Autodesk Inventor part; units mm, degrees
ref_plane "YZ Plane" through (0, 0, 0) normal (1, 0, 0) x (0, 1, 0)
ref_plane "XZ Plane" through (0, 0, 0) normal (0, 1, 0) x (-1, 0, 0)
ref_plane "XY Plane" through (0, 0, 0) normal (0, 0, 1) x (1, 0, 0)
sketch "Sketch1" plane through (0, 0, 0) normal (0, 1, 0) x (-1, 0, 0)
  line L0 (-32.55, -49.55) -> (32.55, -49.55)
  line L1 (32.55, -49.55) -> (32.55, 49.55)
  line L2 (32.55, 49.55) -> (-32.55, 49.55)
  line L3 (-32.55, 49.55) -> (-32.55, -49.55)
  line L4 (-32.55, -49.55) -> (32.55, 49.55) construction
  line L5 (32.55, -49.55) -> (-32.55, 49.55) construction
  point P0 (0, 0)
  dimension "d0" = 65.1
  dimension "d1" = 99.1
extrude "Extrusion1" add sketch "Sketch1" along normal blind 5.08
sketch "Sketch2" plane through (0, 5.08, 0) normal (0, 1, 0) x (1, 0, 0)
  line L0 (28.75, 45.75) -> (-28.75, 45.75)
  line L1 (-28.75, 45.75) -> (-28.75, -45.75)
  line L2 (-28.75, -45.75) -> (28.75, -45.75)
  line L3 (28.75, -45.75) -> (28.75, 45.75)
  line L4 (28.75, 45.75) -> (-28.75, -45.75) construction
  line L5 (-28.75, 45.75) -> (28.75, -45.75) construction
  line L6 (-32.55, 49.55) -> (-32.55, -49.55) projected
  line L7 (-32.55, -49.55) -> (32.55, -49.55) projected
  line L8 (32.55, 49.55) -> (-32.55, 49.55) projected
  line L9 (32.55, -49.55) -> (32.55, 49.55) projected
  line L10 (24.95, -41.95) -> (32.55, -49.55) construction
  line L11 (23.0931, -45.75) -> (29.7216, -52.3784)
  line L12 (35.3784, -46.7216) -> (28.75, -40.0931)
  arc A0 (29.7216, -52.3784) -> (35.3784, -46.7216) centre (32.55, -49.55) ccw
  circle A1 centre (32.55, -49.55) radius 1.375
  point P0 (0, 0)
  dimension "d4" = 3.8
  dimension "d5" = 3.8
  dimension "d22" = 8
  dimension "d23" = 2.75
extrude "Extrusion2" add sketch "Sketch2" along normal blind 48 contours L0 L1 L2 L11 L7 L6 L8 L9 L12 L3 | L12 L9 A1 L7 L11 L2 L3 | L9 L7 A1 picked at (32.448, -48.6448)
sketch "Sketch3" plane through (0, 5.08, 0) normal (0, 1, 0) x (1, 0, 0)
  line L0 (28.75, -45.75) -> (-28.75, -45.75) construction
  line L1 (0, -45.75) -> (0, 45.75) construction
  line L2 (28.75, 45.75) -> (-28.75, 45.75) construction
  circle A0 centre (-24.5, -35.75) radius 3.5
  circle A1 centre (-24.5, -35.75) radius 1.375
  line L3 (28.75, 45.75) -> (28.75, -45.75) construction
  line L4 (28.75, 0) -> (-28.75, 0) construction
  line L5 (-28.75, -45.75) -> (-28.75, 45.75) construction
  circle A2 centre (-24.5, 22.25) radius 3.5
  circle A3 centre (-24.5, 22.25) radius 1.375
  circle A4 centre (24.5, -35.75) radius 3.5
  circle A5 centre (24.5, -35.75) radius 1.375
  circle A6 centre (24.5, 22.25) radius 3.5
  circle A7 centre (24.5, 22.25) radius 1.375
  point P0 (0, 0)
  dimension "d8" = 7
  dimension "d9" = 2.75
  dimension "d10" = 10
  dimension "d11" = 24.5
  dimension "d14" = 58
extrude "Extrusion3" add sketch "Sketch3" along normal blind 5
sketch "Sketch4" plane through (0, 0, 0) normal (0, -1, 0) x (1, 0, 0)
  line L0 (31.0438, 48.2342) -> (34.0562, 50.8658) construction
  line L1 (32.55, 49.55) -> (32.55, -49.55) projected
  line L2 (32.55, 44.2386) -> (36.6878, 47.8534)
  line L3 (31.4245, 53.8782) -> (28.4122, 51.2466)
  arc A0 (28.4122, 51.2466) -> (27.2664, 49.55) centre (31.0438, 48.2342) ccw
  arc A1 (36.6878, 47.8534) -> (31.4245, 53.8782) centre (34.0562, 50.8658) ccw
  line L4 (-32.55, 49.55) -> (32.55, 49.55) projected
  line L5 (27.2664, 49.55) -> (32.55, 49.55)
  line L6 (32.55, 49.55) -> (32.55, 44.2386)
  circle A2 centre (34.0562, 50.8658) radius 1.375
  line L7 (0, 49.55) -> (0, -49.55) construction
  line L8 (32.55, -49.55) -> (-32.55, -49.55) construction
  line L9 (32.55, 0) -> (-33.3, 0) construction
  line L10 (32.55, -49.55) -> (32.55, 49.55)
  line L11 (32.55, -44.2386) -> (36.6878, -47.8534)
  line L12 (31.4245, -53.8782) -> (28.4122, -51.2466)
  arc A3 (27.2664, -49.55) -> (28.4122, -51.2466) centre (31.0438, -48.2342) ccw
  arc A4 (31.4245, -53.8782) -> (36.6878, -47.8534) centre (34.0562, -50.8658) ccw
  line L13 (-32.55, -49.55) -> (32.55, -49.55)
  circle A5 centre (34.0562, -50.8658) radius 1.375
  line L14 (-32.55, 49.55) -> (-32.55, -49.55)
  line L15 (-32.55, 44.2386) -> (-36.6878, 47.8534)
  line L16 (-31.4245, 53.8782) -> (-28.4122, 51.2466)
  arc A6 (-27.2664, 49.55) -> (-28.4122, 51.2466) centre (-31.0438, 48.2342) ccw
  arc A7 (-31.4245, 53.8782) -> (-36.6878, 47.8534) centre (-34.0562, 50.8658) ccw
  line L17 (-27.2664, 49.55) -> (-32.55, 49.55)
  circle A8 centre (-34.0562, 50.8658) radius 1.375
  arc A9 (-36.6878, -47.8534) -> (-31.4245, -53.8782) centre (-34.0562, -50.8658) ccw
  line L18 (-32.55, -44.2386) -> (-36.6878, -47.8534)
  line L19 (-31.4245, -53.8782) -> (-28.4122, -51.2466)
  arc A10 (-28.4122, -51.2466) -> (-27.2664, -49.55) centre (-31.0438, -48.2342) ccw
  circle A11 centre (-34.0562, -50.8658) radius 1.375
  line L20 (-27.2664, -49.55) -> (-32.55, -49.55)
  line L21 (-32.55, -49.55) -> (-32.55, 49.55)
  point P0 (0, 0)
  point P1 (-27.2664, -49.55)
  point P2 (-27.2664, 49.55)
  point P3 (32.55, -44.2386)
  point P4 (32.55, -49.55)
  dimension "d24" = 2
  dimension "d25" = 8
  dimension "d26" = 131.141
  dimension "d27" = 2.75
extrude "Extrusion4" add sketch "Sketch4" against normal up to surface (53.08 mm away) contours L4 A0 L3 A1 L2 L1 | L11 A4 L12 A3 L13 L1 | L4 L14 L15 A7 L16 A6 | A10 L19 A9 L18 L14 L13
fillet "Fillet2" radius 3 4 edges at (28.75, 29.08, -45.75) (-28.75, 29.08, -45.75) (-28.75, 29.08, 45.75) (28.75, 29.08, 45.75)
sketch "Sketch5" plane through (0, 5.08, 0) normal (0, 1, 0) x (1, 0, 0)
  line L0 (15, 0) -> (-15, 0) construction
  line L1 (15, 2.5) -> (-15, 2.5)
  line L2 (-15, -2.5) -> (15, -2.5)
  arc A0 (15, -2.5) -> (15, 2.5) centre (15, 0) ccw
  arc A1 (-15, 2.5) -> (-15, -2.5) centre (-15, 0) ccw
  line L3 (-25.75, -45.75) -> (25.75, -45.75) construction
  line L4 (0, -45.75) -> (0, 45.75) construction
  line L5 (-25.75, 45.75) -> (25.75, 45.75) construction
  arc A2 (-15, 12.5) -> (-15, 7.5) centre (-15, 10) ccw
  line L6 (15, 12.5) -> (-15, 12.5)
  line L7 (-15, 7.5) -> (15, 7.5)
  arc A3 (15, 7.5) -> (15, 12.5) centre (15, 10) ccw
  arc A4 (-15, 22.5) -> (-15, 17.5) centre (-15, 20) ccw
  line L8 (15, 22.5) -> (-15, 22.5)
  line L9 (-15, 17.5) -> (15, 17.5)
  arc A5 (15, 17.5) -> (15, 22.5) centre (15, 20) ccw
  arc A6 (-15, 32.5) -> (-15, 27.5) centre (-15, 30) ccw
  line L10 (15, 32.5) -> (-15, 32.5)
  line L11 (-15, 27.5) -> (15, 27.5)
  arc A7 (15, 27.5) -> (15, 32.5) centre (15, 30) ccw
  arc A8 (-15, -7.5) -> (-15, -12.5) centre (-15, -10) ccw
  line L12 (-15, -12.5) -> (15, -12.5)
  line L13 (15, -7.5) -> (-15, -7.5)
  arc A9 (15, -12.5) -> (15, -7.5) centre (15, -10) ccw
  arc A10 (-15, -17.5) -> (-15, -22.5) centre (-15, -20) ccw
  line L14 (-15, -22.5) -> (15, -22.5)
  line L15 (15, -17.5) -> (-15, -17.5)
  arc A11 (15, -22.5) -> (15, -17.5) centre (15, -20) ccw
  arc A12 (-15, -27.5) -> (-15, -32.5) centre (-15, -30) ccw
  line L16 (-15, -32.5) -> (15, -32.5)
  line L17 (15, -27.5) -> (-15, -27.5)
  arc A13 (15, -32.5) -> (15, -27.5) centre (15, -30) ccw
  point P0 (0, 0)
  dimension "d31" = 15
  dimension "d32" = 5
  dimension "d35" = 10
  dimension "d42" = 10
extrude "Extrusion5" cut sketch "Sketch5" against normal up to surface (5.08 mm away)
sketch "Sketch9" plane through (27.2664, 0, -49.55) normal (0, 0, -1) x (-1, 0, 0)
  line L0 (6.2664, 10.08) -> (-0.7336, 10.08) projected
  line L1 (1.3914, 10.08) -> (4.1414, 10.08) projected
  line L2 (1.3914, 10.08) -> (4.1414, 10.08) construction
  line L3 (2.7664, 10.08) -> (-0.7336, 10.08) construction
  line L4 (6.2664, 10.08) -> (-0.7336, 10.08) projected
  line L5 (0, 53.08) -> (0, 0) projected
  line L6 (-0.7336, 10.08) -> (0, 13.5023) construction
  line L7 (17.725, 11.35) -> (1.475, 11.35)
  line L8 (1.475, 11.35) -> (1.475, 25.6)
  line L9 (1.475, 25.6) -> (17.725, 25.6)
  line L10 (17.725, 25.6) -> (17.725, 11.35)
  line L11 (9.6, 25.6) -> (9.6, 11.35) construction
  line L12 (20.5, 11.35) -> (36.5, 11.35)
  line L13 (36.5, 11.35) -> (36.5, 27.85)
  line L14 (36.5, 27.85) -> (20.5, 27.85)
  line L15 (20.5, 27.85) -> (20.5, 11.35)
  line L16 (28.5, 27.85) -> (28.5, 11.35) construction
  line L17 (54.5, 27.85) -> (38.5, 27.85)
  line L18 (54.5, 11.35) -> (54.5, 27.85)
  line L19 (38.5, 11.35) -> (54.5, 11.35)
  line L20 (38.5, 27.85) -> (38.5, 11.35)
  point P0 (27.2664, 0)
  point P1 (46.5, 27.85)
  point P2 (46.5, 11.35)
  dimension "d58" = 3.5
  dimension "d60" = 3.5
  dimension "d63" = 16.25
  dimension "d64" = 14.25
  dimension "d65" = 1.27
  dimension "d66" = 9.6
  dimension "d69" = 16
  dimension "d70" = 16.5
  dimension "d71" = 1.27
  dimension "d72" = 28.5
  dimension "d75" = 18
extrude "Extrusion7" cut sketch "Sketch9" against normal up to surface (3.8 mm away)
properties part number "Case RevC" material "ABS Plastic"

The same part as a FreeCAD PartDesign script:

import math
import FreeCAD as App
import Part
import Sketcher
from FreeCAD import Vector
Q = App.Units.Quantity


def edges_at(feature, points):
    """Names of the edges that pass closest to the given points."""
    edges = feature.Shape.Edges
    near = lambda p: min(range(len(edges)), key=lambda i: edges[i].distToShape(Part.Vertex(*p))[0])
    return sorted({f"Edge{near(p) + 1}" for p in points})


def add_polygon(sketch, points):
    """Adds a closed chain of lines whose ends are joined by coincident constraints."""
    first, n = sketch.GeometryCount, len(points)
    for a, b in zip(points, points[1:] + points[:1]):
        sketch.addGeometry(Part.LineSegment(App.Vector(*a, 0), App.Vector(*b, 0)), False)
    for i in range(n):
        sketch.addConstraint(Sketcher.Constraint("Coincident", first + i, 2, first + (i + 1) % n, 1))

doc = App.newDocument("Part")
body = doc.addObject("PartDesign::Body", "Body")

sketch1 = doc.addObject("Sketcher::SketchObject", "Sketch")
body.addObject(sketch1)
sketch1.AttachmentSupport = (doc.XZ_Plane, [""])
sketch1.MapMode = "FlatFace"
add_polygon(sketch1, [(33, 50), (33, -50), (-33, -50), (-33, 50)])
sketch1.addConstraint([
    Sketcher.Constraint("Vertical", 0),
    Sketcher.Constraint("Horizontal", 1),
    Sketcher.Constraint("Vertical", 2),
    Sketcher.Constraint("Horizontal", 3),
    Sketcher.Constraint("Symmetric", 0, 2, 2, 2, -1, 1),
    Sketcher.Constraint("DistanceX", 1, 2, 1, 1, 65.1),
    Sketcher.Constraint("DistanceY", 0, 2, 0, 1, 99.1),
])
pad1 = doc.addObject("PartDesign::Pad", "Pad")
body.addObject(pad1)
pad1.Profile = sketch1
pad1.Length = 5.08
pad1.Reversed = True

sketch2 = doc.addObject("Sketcher::SketchObject", "Sketch001")
body.addObject(sketch2)
sketch2.AttachmentSupport = (doc.XZ_Plane, [""])
sketch2.MapMode = "FlatFace"
sketch2.AttachmentOffset = App.Placement(Vector(0, 0, -5.08), App.Rotation())
add_polygon(sketch2, [(-33, 50), (33, 50), (33, -50), (-33, -50)])
add_polygon(sketch2, [(-29, -46), (29, -46), (29, 46), (-29, 46)])
sketch2.addConstraint([
    Sketcher.Constraint("Horizontal", 0),
    Sketcher.Constraint("Vertical", 1),
    Sketcher.Constraint("Horizontal", 2),
    Sketcher.Constraint("Vertical", 3),
    Sketcher.Constraint("Horizontal", 4),
    Sketcher.Constraint("Vertical", 5),
    Sketcher.Constraint("Horizontal", 6),
    Sketcher.Constraint("Vertical", 7),
    Sketcher.Constraint("Symmetric", 0, 2, 2, 2, -1, 1),
    Sketcher.Constraint("Symmetric", 4, 2, 6, 2, -1, 1),
    Sketcher.Constraint("DistanceX", 4, 2, 1, 2, 3.8),
    Sketcher.Constraint("DistanceY", 1, 2, 4, 2, 3.8),
    Sketcher.Constraint("DistanceX", 0, 1, 0, 2, 65.1),
    Sketcher.Constraint("DistanceY", 1, 2, 1, 1, 99.1),
])
pad2 = doc.addObject("PartDesign::Pad", "Pad001")
body.addObject(pad2)
pad2.Profile = sketch2
pad2.Length = 48
pad2.Reversed = True

sketch3 = doc.addObject("Sketcher::SketchObject", "Sketch002")
body.addObject(sketch3)
sketch3.AttachmentSupport = (doc.XZ_Plane, [""])
sketch3.MapMode = "FlatFace"
sketch3.AttachmentOffset = App.Placement(Vector(0, 0, -5.08), App.Rotation())
sketch3.addGeometry([
    Part.Circle(Vector(-24.5, 35.8, 0), Vector(0, 0, 1), 3.5),
    Part.Circle(Vector(-24.5, 35.8, 0), Vector(0, 0, 1), 1.4),
    Part.Circle(Vector(-24.5, -22.2, 0), Vector(0, 0, 1), 3.5),
    Part.Circle(Vector(-24.5, -22.2, 0), Vector(0, 0, 1), 1.4),
    Part.Circle(Vector(24.5, 35.8, 0), Vector(0, 0, 1), 3.5),
    Part.Circle(Vector(24.5, 35.8, 0), Vector(0, 0, 1), 1.4),
    Part.Circle(Vector(24.5, -22.2, 0), Vector(0, 0, 1), 3.5),
    Part.Circle(Vector(24.5, -22.2, 0), Vector(0, 0, 1), 1.4),
], False)
sketch3.addConstraint([
    Sketcher.Constraint("Coincident", 1, 3, 0, 3),
    Sketcher.Constraint("Coincident", 3, 3, 2, 3),
    Sketcher.Constraint("Coincident", 5, 3, 4, 3),
    Sketcher.Constraint("Coincident", 7, 3, 6, 3),
    Sketcher.Constraint("Equal", 0, 2),
    Sketcher.Constraint("Equal", 1, 3),
    Sketcher.Constraint("Equal", 2, 4),
    Sketcher.Constraint("Equal", 3, 5),
    Sketcher.Constraint("Equal", 4, 6),
    Sketcher.Constraint("Equal", 5, 7),
    Sketcher.Constraint("Symmetric", 0, 3, 4, 3, -2),
    Sketcher.Constraint("Symmetric", 2, 3, 6, 3, -2),
    Sketcher.Constraint("Vertical", 1, 3, 2, 3),
    Sketcher.Constraint("Diameter", 0, 7.0),
    Sketcher.Constraint("Diameter", 1, 2.75),
    Sketcher.Constraint("DistanceY", 2, 3, 0, 3, 58.0),
    Sketcher.Constraint("DistanceX", 0, 3, -1, 1, 24.5),
    Sketcher.Constraint("DistanceY", -1, 1, 0, 3, 35.75),
])
pad3 = doc.addObject("PartDesign::Pad", "Pad002")
body.addObject(pad3)
pad3.Profile = sketch3
pad3.Length = 5
pad3.Reversed = True

sketch4 = doc.addObject("Sketcher::SketchObject", "Sketch003")
body.addObject(sketch4)
sketch4.AttachmentSupport = (doc.XZ_Plane, [""])
sketch4.MapMode = "FlatFace"
sketch4.addGeometry([
    Part.LineSegment(Vector(27.3, 49.5, 0), Vector(32.5, 49.5, 0)),
    Part.LineSegment(Vector(32.5, 49.5, 0), Vector(32.5, 44.2, 0)),
    Part.LineSegment(Vector(32.5, 44.2, 0), Vector(36.7, 47.9, 0)),
    Part.ArcOfCircle(Part.Circle(Vector(34.1, 50.9, 0), Vector(0, 0, 1), 4), math.radians(-49), math.radians(131)),
    Part.LineSegment(Vector(31.4, 53.9, 0), Vector(28.4, 51.2, 0)),
    Part.ArcOfCircle(Part.Circle(Vector(31, 48.2, 0), Vector(0, 0, 1), 4), math.radians(131), math.radians(161)),
    Part.Circle(Vector(34.1, 50.9, 0), Vector(0, 0, 1), 1.4),
    Part.LineSegment(Vector(36.7, -47.9, 0), Vector(32.5, -44.2, 0)),
    Part.LineSegment(Vector(32.5, -44.2, 0), Vector(32.5, -49.5, 0)),
    Part.LineSegment(Vector(32.5, -49.5, 0), Vector(27.3, -49.5, 0)),
    Part.ArcOfCircle(Part.Circle(Vector(31, -48.2, 0), Vector(0, 0, 1), 4), math.radians(-161), math.radians(-131)),
    Part.LineSegment(Vector(28.4, -51.2, 0), Vector(31.4, -53.9, 0)),
    Part.ArcOfCircle(Part.Circle(Vector(34.1, -50.9, 0), Vector(0, 0, 1), 4), math.radians(-131), math.radians(49)),
    Part.Circle(Vector(34.1, -50.9, 0), Vector(0, 0, 1), 1.4),
    Part.LineSegment(Vector(-32.5, 49.5, 0), Vector(-27.3, 49.5, 0)),
    Part.ArcOfCircle(Part.Circle(Vector(-31, 48.2, 0), Vector(0, 0, 1), 4), math.radians(19), math.radians(49)),
    Part.LineSegment(Vector(-28.4, 51.2, 0), Vector(-31.4, 53.9, 0)),
    Part.ArcOfCircle(Part.Circle(Vector(-34.1, 50.9, 0), Vector(0, 0, 1), 4), math.radians(49), math.radians(229)),
    Part.LineSegment(Vector(-36.7, 47.9, 0), Vector(-32.5, 44.2, 0)),
    Part.LineSegment(Vector(-32.5, 44.2, 0), Vector(-32.5, 49.5, 0)),
    Part.Circle(Vector(-34.1, 50.9, 0), Vector(0, 0, 1), 1.4),
    Part.ArcOfCircle(Part.Circle(Vector(-31, -48.2, 0), Vector(0, 0, 1), 4), math.radians(-49), math.radians(-19)),
    Part.LineSegment(Vector(-27.3, -49.5, 0), Vector(-32.5, -49.5, 0)),
    Part.LineSegment(Vector(-32.5, -49.5, 0), Vector(-32.5, -44.2, 0)),
    Part.LineSegment(Vector(-32.5, -44.2, 0), Vector(-36.7, -47.9, 0)),
    Part.ArcOfCircle(Part.Circle(Vector(-34.1, -50.9, 0), Vector(0, 0, 1), 4), math.radians(131), math.radians(311)),
    Part.LineSegment(Vector(-31.4, -53.9, 0), Vector(-28.4, -51.2, 0)),
    Part.Circle(Vector(-34.1, -50.9, 0), Vector(0, 0, 1), 1.4),
], False)
sketch4.addConstraint([
    Sketcher.Constraint("Coincident", 0, 2, 1, 1),
    Sketcher.Constraint("Coincident", 1, 2, 2, 1),
    Sketcher.Constraint("Tangent", 2, 2, 3, 1),
    Sketcher.Constraint("Tangent", 3, 2, 4, 1),
    Sketcher.Constraint("Tangent", 4, 2, 5, 1),
    Sketcher.Constraint("Coincident", 5, 2, 0, 1),
    Sketcher.Constraint("Coincident", 7, 2, 8, 1),
    Sketcher.Constraint("Coincident", 8, 2, 9, 1),
    Sketcher.Constraint("Coincident", 9, 2, 10, 1),
    Sketcher.Constraint("Tangent", 10, 2, 11, 1),
    Sketcher.Constraint("Tangent", 11, 2, 12, 1),
    Sketcher.Constraint("Tangent", 12, 2, 7, 1),
    Sketcher.Constraint("Coincident", 14, 2, 15, 1),
    Sketcher.Constraint("Tangent", 15, 2, 16, 1),
    Sketcher.Constraint("Tangent", 16, 2, 17, 1),
    Sketcher.Constraint("Tangent", 17, 2, 18, 1),
    Sketcher.Constraint("Coincident", 18, 2, 19, 1),
    Sketcher.Constraint("Coincident", 19, 2, 14, 1),
    Sketcher.Constraint("Coincident", 21, 2, 22, 1),
    Sketcher.Constraint("Coincident", 22, 2, 23, 1),
    Sketcher.Constraint("Coincident", 23, 2, 24, 1),
    Sketcher.Constraint("Tangent", 24, 2, 25, 1),
    Sketcher.Constraint("Tangent", 25, 2, 26, 1),
    Sketcher.Constraint("Tangent", 26, 2, 21, 1),
    Sketcher.Constraint("Horizontal", 0),
    Sketcher.Constraint("Vertical", 1),
    Sketcher.Constraint("Vertical", 8),
    Sketcher.Constraint("Horizontal", 9),
    Sketcher.Constraint("Horizontal", 14),
    Sketcher.Constraint("Vertical", 19),
    Sketcher.Constraint("Horizontal", 22),
    Sketcher.Constraint("Vertical", 23),
    Sketcher.Constraint("Coincident", 6, 3, 3, 3),
    Sketcher.Constraint("Coincident", 13, 3, 12, 3),
    Sketcher.Constraint("Coincident", 20, 3, 17, 3),
    Sketcher.Constraint("Coincident", 27, 3, 25, 3),
    Sketcher.Constraint("Equal", 3, 5),
    Sketcher.Constraint("Equal", 5, 10),
    Sketcher.Constraint("Equal", 10, 12),
    Sketcher.Constraint("Equal", 6, 13),
    Sketcher.Constraint("Equal", 12, 15),
    Sketcher.Constraint("Equal", 15, 17),
    Sketcher.Constraint("Equal", 13, 20),
    Sketcher.Constraint("Equal", 17, 21),
    Sketcher.Constraint("Equal", 21, 25),
    Sketcher.Constraint("Equal", 20, 27),
    Sketcher.Constraint("Symmetric", 10, 3, 15, 3, -1, 1),
    Sketcher.Constraint("Symmetric", 12, 3, 17, 3, -1, 1),
    Sketcher.Constraint("Symmetric", 5, 3, 21, 3, -1, 1),
    Sketcher.Constraint("Symmetric", 3, 3, 25, 3, -1, 1),
    Sketcher.Constraint("Symmetric", 7, 2, 18, 2, -1, 1),
    Sketcher.Constraint("Symmetric", 0, 2, 22, 2, -1, 1),
    Sketcher.Constraint("Symmetric", 5, 3, 15, 3, -2),
    Sketcher.Constraint("Symmetric", 3, 3, 17, 3, -2),
    Sketcher.Constraint("Symmetric", 1, 2, 18, 2, -2),
    Sketcher.Constraint("Parallel", 2, 4),
    Sketcher.Constraint("Parallel", 4, 24),
    Sketcher.Constraint("Horizontal", 5, 2, 14, 2),
    Sketcher.Constraint("Horizontal", 9, 2, 21, 2),
    Sketcher.Constraint("Radius", 3, 4.0),
    Sketcher.Constraint("Diameter", 6, 2.75),
    Sketcher.Constraint("Distance", 4, 4.0),
    Sketcher.Constraint("Angle", 2, Q("41.1406 deg")),
    Sketcher.Constraint("DistanceY", 10, 3, 3, 3, 99.1),
    Sketcher.Constraint("DistanceX", 15, 3, 3, 3, 65.1),
    Sketcher.Constraint("DistanceX", -1, 1, 0, 2, 32.55),
    Sketcher.Constraint("DistanceY", -1, 1, 0, 2, 49.55),
])
pad4 = doc.addObject("PartDesign::Pad", "Pad003")
body.addObject(pad4)
pad4.Profile = sketch4
pad4.Length = 53.08
pad4.Reversed = True
doc.recompute()

fillet = doc.addObject("PartDesign::Fillet", "Fillet")
body.addObject(fillet)
fillet.Base = (pad4, edges_at(pad4, [
    (28.75, 29.08, -45.75),
    (-28.75, 29.08, -45.75),
    (-28.75, 29.08, 45.75),
    (28.75, 29.08, 45.75),
]))
fillet.Radius = 3

sketch5 = doc.addObject("Sketcher::SketchObject", "Sketch004")
body.addObject(sketch5)
sketch5.AttachmentSupport = (doc.XZ_Plane, [""])
sketch5.MapMode = "FlatFace"
sketch5.AttachmentOffset = App.Placement(Vector(0, 0, -5.08), App.Rotation())
sketch5.addGeometry([
    Part.ArcOfCircle(Part.Circle(Vector(15, 0, 0), Vector(0, 0, 1), 2.5), math.radians(-90), math.radians(90)),
    Part.LineSegment(Vector(15, -2.5, 0), Vector(-15, -2.5, 0)),
    Part.ArcOfCircle(Part.Circle(Vector(-15, 0, 0), Vector(0, 0, 1), 2.5), math.radians(90), math.radians(270)),
    Part.LineSegment(Vector(-15, 2.5, 0), Vector(15, 2.5, 0)),
    Part.LineSegment(Vector(15, -12.5, 0), Vector(-15, -12.5, 0)),
    Part.ArcOfCircle(Part.Circle(Vector(-15, -10, 0), Vector(0, 0, 1), 2.5), math.radians(90), math.radians(270)),
    Part.LineSegment(Vector(-15, -7.5, 0), Vector(15, -7.5, 0)),
    Part.ArcOfCircle(Part.Circle(Vector(15, -10, 0), Vector(0, 0, 1), 2.5), math.radians(-90), math.radians(90)),
    Part.LineSegment(Vector(15, -22.5, 0), Vector(-15, -22.5, 0)),
    Part.ArcOfCircle(Part.Circle(Vector(-15, -20, 0), Vector(0, 0, 1), 2.5), math.radians(90), math.radians(270)),
    Part.LineSegment(Vector(-15, -17.5, 0), Vector(15, -17.5, 0)),
    Part.ArcOfCircle(Part.Circle(Vector(15, -20, 0), Vector(0, 0, 1), 2.5), math.radians(-90), math.radians(90)),
    Part.LineSegment(Vector(15, -32.5, 0), Vector(-15, -32.5, 0)),
    Part.ArcOfCircle(Part.Circle(Vector(-15, -30, 0), Vector(0, 0, 1), 2.5), math.radians(90), math.radians(270)),
    Part.LineSegment(Vector(-15, -27.5, 0), Vector(15, -27.5, 0)),
    Part.ArcOfCircle(Part.Circle(Vector(15, -30, 0), Vector(0, 0, 1), 2.5), math.radians(-90), math.radians(90)),
    Part.LineSegment(Vector(15, 7.5, 0), Vector(-15, 7.5, 0)),
    Part.ArcOfCircle(Part.Circle(Vector(-15, 10, 0), Vector(0, 0, 1), 2.5), math.radians(90), math.radians(270)),
    Part.LineSegment(Vector(-15, 12.5, 0), Vector(15, 12.5, 0)),
    Part.ArcOfCircle(Part.Circle(Vector(15, 10, 0), Vector(0, 0, 1), 2.5), math.radians(-90), math.radians(90)),
    Part.LineSegment(Vector(15, 17.5, 0), Vector(-15, 17.5, 0)),
    Part.ArcOfCircle(Part.Circle(Vector(-15, 20, 0), Vector(0, 0, 1), 2.5), math.radians(90), math.radians(270)),
    Part.LineSegment(Vector(-15, 22.5, 0), Vector(15, 22.5, 0)),
    Part.ArcOfCircle(Part.Circle(Vector(15, 20, 0), Vector(0, 0, 1), 2.5), math.radians(-90), math.radians(90)),
    Part.LineSegment(Vector(15, 27.5, 0), Vector(-15, 27.5, 0)),
    Part.ArcOfCircle(Part.Circle(Vector(-15, 30, 0), Vector(0, 0, 1), 2.5), math.radians(90), math.radians(270)),
    Part.LineSegment(Vector(-15, 32.5, 0), Vector(15, 32.5, 0)),
    Part.ArcOfCircle(Part.Circle(Vector(15, 30, 0), Vector(0, 0, 1), 2.5), math.radians(-90), math.radians(90)),
], False)
sketch5.addConstraint([
    Sketcher.Constraint("Tangent", 0, 1, 1, 1),
    Sketcher.Constraint("Tangent", 1, 2, 2, 2),
    Sketcher.Constraint("Tangent", 2, 1, 3, 1),
    Sketcher.Constraint("Tangent", 3, 2, 0, 2),
    Sketcher.Constraint("Tangent", 4, 2, 5, 2),
    Sketcher.Constraint("Tangent", 5, 1, 6, 1),
    Sketcher.Constraint("Tangent", 6, 2, 7, 2),
    Sketcher.Constraint("Tangent", 7, 1, 4, 1),
    Sketcher.Constraint("Tangent", 8, 2, 9, 2),
    Sketcher.Constraint("Tangent", 9, 1, 10, 1),
    Sketcher.Constraint("Tangent", 10, 2, 11, 2),
    Sketcher.Constraint("Tangent", 11, 1, 8, 1),
    Sketcher.Constraint("Tangent", 12, 2, 13, 2),
    Sketcher.Constraint("Tangent", 13, 1, 14, 1),
    Sketcher.Constraint("Tangent", 14, 2, 15, 2),
    Sketcher.Constraint("Tangent", 15, 1, 12, 1),
    Sketcher.Constraint("Tangent", 16, 2, 17, 2),
    Sketcher.Constraint("Tangent", 17, 1, 18, 1),
    Sketcher.Constraint("Tangent", 18, 2, 19, 2),
    Sketcher.Constraint("Tangent", 19, 1, 16, 1),
    Sketcher.Constraint("Tangent", 20, 2, 21, 2),
    Sketcher.Constraint("Tangent", 21, 1, 22, 1),
    Sketcher.Constraint("Tangent", 22, 2, 23, 2),
    Sketcher.Constraint("Tangent", 23, 1, 20, 1),
    Sketcher.Constraint("Tangent", 24, 2, 25, 2),
    Sketcher.Constraint("Tangent", 25, 1, 26, 1),
    Sketcher.Constraint("Tangent", 26, 2, 27, 2),
    Sketcher.Constraint("Tangent", 27, 1, 24, 1),
    Sketcher.Constraint("Horizontal", 1),
    Sketcher.Constraint("Horizontal", 3),
    Sketcher.Constraint("Horizontal", 4),
    Sketcher.Constraint("Horizontal", 6),
    Sketcher.Constraint("Horizontal", 8),
    Sketcher.Constraint("Horizontal", 10),
    Sketcher.Constraint("Horizontal", 12),
    Sketcher.Constraint("Horizontal", 14),
    Sketcher.Constraint("Horizontal", 16),
    Sketcher.Constraint("Horizontal", 18),
    Sketcher.Constraint("Horizontal", 20),
    Sketcher.Constraint("Horizontal", 22),
    Sketcher.Constraint("Horizontal", 24),
    Sketcher.Constraint("Horizontal", 26),
    Sketcher.Constraint("Equal", 2, 5),
    Sketcher.Constraint("Equal", 7, 9),
    Sketcher.Constraint("Equal", 11, 13),
    Sketcher.Constraint("Equal", 15, 17),
    Sketcher.Constraint("Equal", 19, 21),
    Sketcher.Constraint("Equal", 23, 25),
    Sketcher.Constraint("Symmetric", 0, 3, 2, 3, -1, 1),
    Sketcher.Constraint("Symmetric", 7, 3, 17, 3, -1, 1),
    Sketcher.Constraint("Symmetric", 11, 3, 21, 3, -1, 1),
    Sketcher.Constraint("Symmetric", 15, 3, 25, 3, -1, 1),
    Sketcher.Constraint("Vertical", 2, 3, 5, 3),
    Sketcher.Constraint("Vertical", 0, 3, 7, 3),
    Sketcher.Constraint("Vertical", 5, 3, 9, 3),
    Sketcher.Constraint("Vertical", 7, 3, 11, 3),
    Sketcher.Constraint("Vertical", 9, 3, 13, 3),
    Sketcher.Constraint("Vertical", 11, 3, 15, 3),
    Sketcher.Constraint("Vertical", 15, 3, 19, 3),
    Sketcher.Constraint("Vertical", 19, 3, 23, 3),
    Sketcher.Constraint("Vertical", 23, 3, 27, 3),
    Sketcher.Constraint("Radius", 0, 2.5),
    Sketcher.Constraint("DistanceX", -1, 1, 0, 3, 15.0),
    Sketcher.Constraint("DistanceY", 5, 3, -1, 1, 10.0),
    Sketcher.Constraint("DistanceY", 9, 3, 5, 3, 10.0),
    Sketcher.Constraint("DistanceY", 13, 3, 9, 3, 10.0),
])
pocket1 = doc.addObject("PartDesign::Pocket", "Pocket")
body.addObject(pocket1)
pocket1.Profile = sketch5
pocket1.Length = 5.08
pocket1.Reversed = True

sketch6 = doc.addObject("Sketcher::SketchObject", "Sketch005")
body.addObject(sketch6)
sketch6.AttachmentSupport = (doc.XY_Plane, [""])
sketch6.MapMode = "FlatFace"
sketch6.AttachmentOffset = App.Placement(Vector(0, 0, -49.55), App.Rotation())
add_polygon(sketch6, [(26, 11), (10, 11), (10, 26), (26, 26)])
add_polygon(sketch6, [(7, 28), (7, 11), (-9, 11), (-9, 28)])
add_polygon(sketch6, [(-27, 11), (-27, 28), (-11, 28), (-11, 11)])
sketch6.addConstraint([
    Sketcher.Constraint("Horizontal", 0),
    Sketcher.Constraint("Vertical", 1),
    Sketcher.Constraint("Horizontal", 2),
    Sketcher.Constraint("Vertical", 3),
    Sketcher.Constraint("Vertical", 4),
    Sketcher.Constraint("Horizontal", 5),
    Sketcher.Constraint("Vertical", 6),
    Sketcher.Constraint("Horizontal", 7),
    Sketcher.Constraint("Vertical", 8),
    Sketcher.Constraint("Horizontal", 9),
    Sketcher.Constraint("Vertical", 10),
    Sketcher.Constraint("Horizontal", 11),
    Sketcher.Constraint("Horizontal", 3, 2, 4, 2),
    Sketcher.Constraint("Horizontal", 7, 2, 8, 2),
    Sketcher.Constraint("Horizontal", 5, 2, 10, 2),
    Sketcher.Constraint("Equal", 7, 9),
    Sketcher.Constraint("DistanceX", 5, 2, 5, 1, 16.0),
    Sketcher.Constraint("DistanceY", 4, 2, 4, 1, 16.5),
    Sketcher.Constraint("DistanceX", 8, 2, 6, 2, 18.0),
    Sketcher.Constraint("DistanceX", 0, 2, 0, 1, 16.25),
    Sketcher.Constraint("DistanceY", 1, 1, 1, 2, 14.25),
    Sketcher.Constraint("DistanceY", -1, 1, 1, 2, 25.6),
    Sketcher.Constraint("DistanceX", 4, 2, 0, 2, 2.775),
    Sketcher.Constraint("DistanceX", -1, 1, 0, 2, 9.5414),
])
pocket2 = doc.addObject("PartDesign::Pocket", "Pocket001")
body.addObject(pocket2)
pocket2.Profile = sketch6
pocket2.Length = 3.8
pocket2.Reversed = True

doc.recompute()
